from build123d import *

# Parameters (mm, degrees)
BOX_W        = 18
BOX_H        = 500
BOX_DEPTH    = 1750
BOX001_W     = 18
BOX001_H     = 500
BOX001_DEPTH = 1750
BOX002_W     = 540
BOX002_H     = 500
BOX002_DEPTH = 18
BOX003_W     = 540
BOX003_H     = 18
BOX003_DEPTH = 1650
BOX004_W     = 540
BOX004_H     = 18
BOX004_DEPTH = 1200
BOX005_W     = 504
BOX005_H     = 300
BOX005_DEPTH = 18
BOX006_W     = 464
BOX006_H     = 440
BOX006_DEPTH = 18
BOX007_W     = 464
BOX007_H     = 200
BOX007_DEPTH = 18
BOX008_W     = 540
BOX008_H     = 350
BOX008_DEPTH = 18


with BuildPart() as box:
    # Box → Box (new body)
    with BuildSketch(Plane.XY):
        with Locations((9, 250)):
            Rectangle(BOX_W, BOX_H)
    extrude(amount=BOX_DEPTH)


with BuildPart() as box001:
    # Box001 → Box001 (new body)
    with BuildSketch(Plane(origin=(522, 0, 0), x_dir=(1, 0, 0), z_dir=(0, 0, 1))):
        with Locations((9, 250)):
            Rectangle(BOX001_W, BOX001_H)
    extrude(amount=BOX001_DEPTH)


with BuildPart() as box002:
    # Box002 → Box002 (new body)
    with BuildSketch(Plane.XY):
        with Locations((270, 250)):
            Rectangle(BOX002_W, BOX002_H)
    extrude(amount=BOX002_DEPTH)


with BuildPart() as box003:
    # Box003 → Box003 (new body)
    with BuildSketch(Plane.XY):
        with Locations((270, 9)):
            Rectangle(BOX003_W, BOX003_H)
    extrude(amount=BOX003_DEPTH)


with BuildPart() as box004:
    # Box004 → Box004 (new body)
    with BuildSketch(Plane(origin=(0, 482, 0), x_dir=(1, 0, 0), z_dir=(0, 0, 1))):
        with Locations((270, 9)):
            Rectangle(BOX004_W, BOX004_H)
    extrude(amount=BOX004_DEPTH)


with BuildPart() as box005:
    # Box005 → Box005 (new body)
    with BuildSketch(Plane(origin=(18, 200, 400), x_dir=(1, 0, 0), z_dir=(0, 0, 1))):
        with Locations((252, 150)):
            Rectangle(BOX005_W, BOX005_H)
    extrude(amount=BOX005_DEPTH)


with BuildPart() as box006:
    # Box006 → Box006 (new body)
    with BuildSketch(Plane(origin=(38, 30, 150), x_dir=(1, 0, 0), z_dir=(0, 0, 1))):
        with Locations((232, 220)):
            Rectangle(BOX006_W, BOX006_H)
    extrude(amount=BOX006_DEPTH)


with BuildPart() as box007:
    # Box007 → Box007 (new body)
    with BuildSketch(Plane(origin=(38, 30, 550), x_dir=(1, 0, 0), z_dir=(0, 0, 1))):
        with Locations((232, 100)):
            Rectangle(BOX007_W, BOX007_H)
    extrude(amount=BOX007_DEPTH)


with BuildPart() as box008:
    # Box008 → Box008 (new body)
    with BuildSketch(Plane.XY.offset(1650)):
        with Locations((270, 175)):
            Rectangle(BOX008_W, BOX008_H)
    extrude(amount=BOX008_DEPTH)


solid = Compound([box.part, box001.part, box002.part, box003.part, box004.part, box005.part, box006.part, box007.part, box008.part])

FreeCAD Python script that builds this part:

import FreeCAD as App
import Part
import Sketcher

V = App.Vector


def add_polygon(sketch, points):
    """Adds a closed chain of lines whose ends are joined by coincident constraints."""
    first, n = sketch.GeometryCount, len(points)
    for a, b in zip(points, points[1:] + points[:1]):
        sketch.addGeometry(Part.LineSegment(App.Vector(*a, 0), App.Vector(*b, 0)), False)
    for i in range(n):
        sketch.addConstraint(Sketcher.Constraint("Coincident", first + i, 2, first + (i + 1) % n, 1))

doc = App.newDocument("Part")
body = doc.addObject("PartDesign::Body", "Body")

# Sketch on XY plane
sketch1 = body.newObject("Sketcher::SketchObject", "Sketch")
sketch1.AttachmentSupport = (doc.getObject("XY_Plane"), [""])
sketch1.MapMode = "FlatFace"
add_polygon(sketch1, [(0, 500), (0, 0), (18, 0), (18, 500)])  # lines 0-3
sketch1.addConstraint([
    Sketcher.Constraint("Vertical", 0),
    Sketcher.Constraint("Horizontal", 1),
    Sketcher.Constraint("Vertical", 2),
    Sketcher.Constraint("Horizontal", 3),
    Sketcher.Constraint("Coincident", 0, 2, -1, 1),
    Sketcher.Constraint("DistanceX", 1, 1, 1, 2, 18.0),
    Sketcher.Constraint("DistanceY", 0, 2, 0, 1, 500.0),
])
pad1 = body.newObject("PartDesign::Pad", "Pad")
pad1.Profile = sketch1
pad1.Length = 1750
body2 = doc.addObject("PartDesign::Body", "Body001")

# Sketch on XY plane
sketch2 = body2.newObject("Sketcher::SketchObject", "Sketch001")
sketch2.AttachmentSupport = (doc.getObject("XY_Plane001"), [""])
sketch2.MapMode = "FlatFace"
add_polygon(sketch2, [(522, 500), (522, 0), (540, 0), (540, 500)])  # lines 0-3
sketch2.addConstraint([
    Sketcher.Constraint("Vertical", 0),
    Sketcher.Constraint("Horizontal", 1),
    Sketcher.Constraint("Vertical", 2),
    Sketcher.Constraint("Horizontal", 3),
    Sketcher.Constraint("PointOnObject", 0, 2, -1),
    Sketcher.Constraint("DistanceX", 1, 1, 1, 2, 18.0),
    Sketcher.Constraint("DistanceY", 0, 2, 0, 1, 500.0),
    Sketcher.Constraint("DistanceX", -1, 1, 0, 2, 522.0),
])
pad2 = body2.newObject("PartDesign::Pad", "Pad001")
pad2.Profile = sketch2
pad2.Length = 1750
body3 = doc.addObject("PartDesign::Body", "Body002")

# Sketch on XY plane
sketch3 = body3.newObject("Sketcher::SketchObject", "Sketch002")
sketch3.AttachmentSupport = (doc.getObject("XY_Plane002"), [""])
sketch3.MapMode = "FlatFace"
add_polygon(sketch3, [(0, 500), (0, 0), (540, 0), (540, 500)])  # lines 0-3
sketch3.addConstraint([
    Sketcher.Constraint("Vertical", 0),
    Sketcher.Constraint("Horizontal", 1),
    Sketcher.Constraint("Vertical", 2),
    Sketcher.Constraint("Horizontal", 3),
    Sketcher.Constraint("Coincident", 0, 2, -1, 1),
    Sketcher.Constraint("DistanceX", 1, 1, 1, 2, 540.0),
    Sketcher.Constraint("DistanceY", 0, 2, 0, 1, 500.0),
])
pad3 = body3.newObject("PartDesign::Pad", "Pad002")
pad3.Profile = sketch3
pad3.Length = 18
body4 = doc.addObject("PartDesign::Body", "Body003")

# Sketch on XY plane
sketch4 = body4.newObject("Sketcher::SketchObject", "Sketch003")
sketch4.AttachmentSupport = (doc.getObject("XY_Plane003"), [""])
sketch4.MapMode = "FlatFace"
add_polygon(sketch4, [(0, 18), (0, 0), (540, 0), (540, 18)])  # lines 0-3
sketch4.addConstraint([
    Sketcher.Constraint("Vertical", 0),
    Sketcher.Constraint("Horizontal", 1),
    Sketcher.Constraint("Vertical", 2),
    Sketcher.Constraint("Horizontal", 3),
    Sketcher.Constraint("Coincident", 0, 2, -1, 1),
    Sketcher.Constraint("DistanceX", 1, 1, 1, 2, 540.0),
    Sketcher.Constraint("DistanceY", 0, 2, 0, 1, 18.0),
])
pad4 = body4.newObject("PartDesign::Pad", "Pad003")
pad4.Profile = sketch4
pad4.Length = 1650
body5 = doc.addObject("PartDesign::Body", "Body004")

# Sketch on XY plane
sketch5 = body5.newObject("Sketcher::SketchObject", "Sketch004")
sketch5.AttachmentSupport = (doc.getObject("XY_Plane004"), [""])
sketch5.MapMode = "FlatFace"
add_polygon(sketch5, [(0, 500), (0, 482), (540, 482), (540, 500)])  # lines 0-3
sketch5.addConstraint([
    Sketcher.Constraint("Vertical", 0),
    Sketcher.Constraint("Horizontal", 1),
    Sketcher.Constraint("Vertical", 2),
    Sketcher.Constraint("Horizontal", 3),
    Sketcher.Constraint("PointOnObject", 0, 2, -2),
    Sketcher.Constraint("DistanceX", 1, 1, 1, 2, 540.0),
    Sketcher.Constraint("DistanceY", 0, 2, 0, 1, 18.0),
    Sketcher.Constraint("DistanceY", -1, 1, 0, 2, 482.0),
])
pad5 = body5.newObject("PartDesign::Pad", "Pad004")
pad5.Profile = sketch5
pad5.Length = 1200
body6 = doc.addObject("PartDesign::Body", "Body005")

# Sketch on XY plane
sketch6 = body6.newObject("Sketcher::SketchObject", "Sketch005")
sketch6.AttachmentSupport = (doc.getObject("XY_Plane005"), [""])
sketch6.MapMode = "FlatFace"
sketch6.AttachmentOffset = App.Placement(V(0, 0, 400), App.Rotation())
add_polygon(sketch6, [(18, 500), (18, 200), (522, 200), (522, 500)])  # lines 0-3
sketch6.addConstraint([
    Sketcher.Constraint("Vertical", 0),
    Sketcher.Constraint("Horizontal", 1),
    Sketcher.Constraint("Vertical", 2),
    Sketcher.Constraint("Horizontal", 3),
    Sketcher.Constraint("DistanceX", 1, 1, 1, 2, 504.0),
    Sketcher.Constraint("DistanceY", 0, 2, 0, 1, 300.0),
    Sketcher.Constraint("DistanceX", -1, 1, 0, 2, 18.0),
    Sketcher.Constraint("DistanceY", -1, 1, 0, 2, 200.0),
])
pad6 = body6.newObject("PartDesign::Pad", "Pad005")
pad6.Profile = sketch6
pad6.Length = 18
body7 = doc.addObject("PartDesign::Body", "Body006")

# Sketch on XY plane
sketch7 = body7.newObject("Sketcher::SketchObject", "Sketch006")
sketch7.AttachmentSupport = (doc.getObject("XY_Plane006"), [""])
sketch7.MapMode = "FlatFace"
sketch7.AttachmentOffset = App.Placement(V(0, 0, 150), App.Rotation())
add_polygon(sketch7, [(38, 470), (38, 30), (502, 30), (502, 470)])  # lines 0-3
sketch7.addConstraint([
    Sketcher.Constraint("Vertical", 0),
    Sketcher.Constraint("Horizontal", 1),
    Sketcher.Constraint("Vertical", 2),
    Sketcher.Constraint("Horizontal", 3),
    Sketcher.Constraint("DistanceX", 1, 1, 1, 2, 464.0),
    Sketcher.Constraint("DistanceY", 0, 2, 0, 1, 440.0),
    Sketcher.Constraint("DistanceX", -1, 1, 0, 2, 38.0),
    Sketcher.Constraint("DistanceY", -1, 1, 0, 2, 30.0),
])
pad7 = body7.newObject("PartDesign::Pad", "Pad006")
pad7.Profile = sketch7
pad7.Length = 18
body8 = doc.addObject("PartDesign::Body", "Body007")

# Sketch on XY plane
sketch8 = body8.newObject("Sketcher::SketchObject", "Sketch007")
sketch8.AttachmentSupport = (doc.getObject("XY_Plane007"), [""])
sketch8.MapMode = "FlatFace"
sketch8.AttachmentOffset = App.Placement(V(0, 0, 550), App.Rotation())
add_polygon(sketch8, [(38, 230), (38, 30), (502, 30), (502, 230)])  # lines 0-3
sketch8.addConstraint([
    Sketcher.Constraint("Vertical", 0),
    Sketcher.Constraint("Horizontal", 1),
    Sketcher.Constraint("Vertical", 2),
    Sketcher.Constraint("Horizontal", 3),
    Sketcher.Constraint("DistanceX", 1, 1, 1, 2, 464.0),
    Sketcher.Constraint("DistanceY", 0, 2, 0, 1, 200.0),
    Sketcher.Constraint("DistanceX", -1, 1, 0, 2, 38.0),
    Sketcher.Constraint("DistanceY", -1, 1, 0, 2, 30.0),
])
pad8 = body8.newObject("PartDesign::Pad", "Pad007")
pad8.Profile = sketch8
pad8.Length = 18
body9 = doc.addObject("PartDesign::Body", "Body008")

# Sketch on XY plane
sketch9 = body9.newObject("Sketcher::SketchObject", "Sketch008")
sketch9.AttachmentSupport = (doc.getObject("XY_Plane008"), [""])
sketch9.MapMode = "FlatFace"
sketch9.AttachmentOffset = App.Placement(V(0, 0, 1650), App.Rotation())
add_polygon(sketch9, [(0, 350), (0, 0), (540, 0), (540, 350)])  # lines 0-3
sketch9.addConstraint([
    Sketcher.Constraint("Vertical", 0),
    Sketcher.Constraint("Horizontal", 1),
    Sketcher.Constraint("Vertical", 2),
    Sketcher.Constraint("Horizontal", 3),
    Sketcher.Constraint("Coincident", 0, 2, -1, 1),
    Sketcher.Constraint("DistanceX", 1, 1, 1, 2, 540.0),
    Sketcher.Constraint("DistanceY", 0, 2, 0, 1, 350.0),
])
pad9 = body9.newObject("PartDesign::Pad", "Pad008")
pad9.Profile = sketch9
pad9.Length = 18

doc.recompute()
